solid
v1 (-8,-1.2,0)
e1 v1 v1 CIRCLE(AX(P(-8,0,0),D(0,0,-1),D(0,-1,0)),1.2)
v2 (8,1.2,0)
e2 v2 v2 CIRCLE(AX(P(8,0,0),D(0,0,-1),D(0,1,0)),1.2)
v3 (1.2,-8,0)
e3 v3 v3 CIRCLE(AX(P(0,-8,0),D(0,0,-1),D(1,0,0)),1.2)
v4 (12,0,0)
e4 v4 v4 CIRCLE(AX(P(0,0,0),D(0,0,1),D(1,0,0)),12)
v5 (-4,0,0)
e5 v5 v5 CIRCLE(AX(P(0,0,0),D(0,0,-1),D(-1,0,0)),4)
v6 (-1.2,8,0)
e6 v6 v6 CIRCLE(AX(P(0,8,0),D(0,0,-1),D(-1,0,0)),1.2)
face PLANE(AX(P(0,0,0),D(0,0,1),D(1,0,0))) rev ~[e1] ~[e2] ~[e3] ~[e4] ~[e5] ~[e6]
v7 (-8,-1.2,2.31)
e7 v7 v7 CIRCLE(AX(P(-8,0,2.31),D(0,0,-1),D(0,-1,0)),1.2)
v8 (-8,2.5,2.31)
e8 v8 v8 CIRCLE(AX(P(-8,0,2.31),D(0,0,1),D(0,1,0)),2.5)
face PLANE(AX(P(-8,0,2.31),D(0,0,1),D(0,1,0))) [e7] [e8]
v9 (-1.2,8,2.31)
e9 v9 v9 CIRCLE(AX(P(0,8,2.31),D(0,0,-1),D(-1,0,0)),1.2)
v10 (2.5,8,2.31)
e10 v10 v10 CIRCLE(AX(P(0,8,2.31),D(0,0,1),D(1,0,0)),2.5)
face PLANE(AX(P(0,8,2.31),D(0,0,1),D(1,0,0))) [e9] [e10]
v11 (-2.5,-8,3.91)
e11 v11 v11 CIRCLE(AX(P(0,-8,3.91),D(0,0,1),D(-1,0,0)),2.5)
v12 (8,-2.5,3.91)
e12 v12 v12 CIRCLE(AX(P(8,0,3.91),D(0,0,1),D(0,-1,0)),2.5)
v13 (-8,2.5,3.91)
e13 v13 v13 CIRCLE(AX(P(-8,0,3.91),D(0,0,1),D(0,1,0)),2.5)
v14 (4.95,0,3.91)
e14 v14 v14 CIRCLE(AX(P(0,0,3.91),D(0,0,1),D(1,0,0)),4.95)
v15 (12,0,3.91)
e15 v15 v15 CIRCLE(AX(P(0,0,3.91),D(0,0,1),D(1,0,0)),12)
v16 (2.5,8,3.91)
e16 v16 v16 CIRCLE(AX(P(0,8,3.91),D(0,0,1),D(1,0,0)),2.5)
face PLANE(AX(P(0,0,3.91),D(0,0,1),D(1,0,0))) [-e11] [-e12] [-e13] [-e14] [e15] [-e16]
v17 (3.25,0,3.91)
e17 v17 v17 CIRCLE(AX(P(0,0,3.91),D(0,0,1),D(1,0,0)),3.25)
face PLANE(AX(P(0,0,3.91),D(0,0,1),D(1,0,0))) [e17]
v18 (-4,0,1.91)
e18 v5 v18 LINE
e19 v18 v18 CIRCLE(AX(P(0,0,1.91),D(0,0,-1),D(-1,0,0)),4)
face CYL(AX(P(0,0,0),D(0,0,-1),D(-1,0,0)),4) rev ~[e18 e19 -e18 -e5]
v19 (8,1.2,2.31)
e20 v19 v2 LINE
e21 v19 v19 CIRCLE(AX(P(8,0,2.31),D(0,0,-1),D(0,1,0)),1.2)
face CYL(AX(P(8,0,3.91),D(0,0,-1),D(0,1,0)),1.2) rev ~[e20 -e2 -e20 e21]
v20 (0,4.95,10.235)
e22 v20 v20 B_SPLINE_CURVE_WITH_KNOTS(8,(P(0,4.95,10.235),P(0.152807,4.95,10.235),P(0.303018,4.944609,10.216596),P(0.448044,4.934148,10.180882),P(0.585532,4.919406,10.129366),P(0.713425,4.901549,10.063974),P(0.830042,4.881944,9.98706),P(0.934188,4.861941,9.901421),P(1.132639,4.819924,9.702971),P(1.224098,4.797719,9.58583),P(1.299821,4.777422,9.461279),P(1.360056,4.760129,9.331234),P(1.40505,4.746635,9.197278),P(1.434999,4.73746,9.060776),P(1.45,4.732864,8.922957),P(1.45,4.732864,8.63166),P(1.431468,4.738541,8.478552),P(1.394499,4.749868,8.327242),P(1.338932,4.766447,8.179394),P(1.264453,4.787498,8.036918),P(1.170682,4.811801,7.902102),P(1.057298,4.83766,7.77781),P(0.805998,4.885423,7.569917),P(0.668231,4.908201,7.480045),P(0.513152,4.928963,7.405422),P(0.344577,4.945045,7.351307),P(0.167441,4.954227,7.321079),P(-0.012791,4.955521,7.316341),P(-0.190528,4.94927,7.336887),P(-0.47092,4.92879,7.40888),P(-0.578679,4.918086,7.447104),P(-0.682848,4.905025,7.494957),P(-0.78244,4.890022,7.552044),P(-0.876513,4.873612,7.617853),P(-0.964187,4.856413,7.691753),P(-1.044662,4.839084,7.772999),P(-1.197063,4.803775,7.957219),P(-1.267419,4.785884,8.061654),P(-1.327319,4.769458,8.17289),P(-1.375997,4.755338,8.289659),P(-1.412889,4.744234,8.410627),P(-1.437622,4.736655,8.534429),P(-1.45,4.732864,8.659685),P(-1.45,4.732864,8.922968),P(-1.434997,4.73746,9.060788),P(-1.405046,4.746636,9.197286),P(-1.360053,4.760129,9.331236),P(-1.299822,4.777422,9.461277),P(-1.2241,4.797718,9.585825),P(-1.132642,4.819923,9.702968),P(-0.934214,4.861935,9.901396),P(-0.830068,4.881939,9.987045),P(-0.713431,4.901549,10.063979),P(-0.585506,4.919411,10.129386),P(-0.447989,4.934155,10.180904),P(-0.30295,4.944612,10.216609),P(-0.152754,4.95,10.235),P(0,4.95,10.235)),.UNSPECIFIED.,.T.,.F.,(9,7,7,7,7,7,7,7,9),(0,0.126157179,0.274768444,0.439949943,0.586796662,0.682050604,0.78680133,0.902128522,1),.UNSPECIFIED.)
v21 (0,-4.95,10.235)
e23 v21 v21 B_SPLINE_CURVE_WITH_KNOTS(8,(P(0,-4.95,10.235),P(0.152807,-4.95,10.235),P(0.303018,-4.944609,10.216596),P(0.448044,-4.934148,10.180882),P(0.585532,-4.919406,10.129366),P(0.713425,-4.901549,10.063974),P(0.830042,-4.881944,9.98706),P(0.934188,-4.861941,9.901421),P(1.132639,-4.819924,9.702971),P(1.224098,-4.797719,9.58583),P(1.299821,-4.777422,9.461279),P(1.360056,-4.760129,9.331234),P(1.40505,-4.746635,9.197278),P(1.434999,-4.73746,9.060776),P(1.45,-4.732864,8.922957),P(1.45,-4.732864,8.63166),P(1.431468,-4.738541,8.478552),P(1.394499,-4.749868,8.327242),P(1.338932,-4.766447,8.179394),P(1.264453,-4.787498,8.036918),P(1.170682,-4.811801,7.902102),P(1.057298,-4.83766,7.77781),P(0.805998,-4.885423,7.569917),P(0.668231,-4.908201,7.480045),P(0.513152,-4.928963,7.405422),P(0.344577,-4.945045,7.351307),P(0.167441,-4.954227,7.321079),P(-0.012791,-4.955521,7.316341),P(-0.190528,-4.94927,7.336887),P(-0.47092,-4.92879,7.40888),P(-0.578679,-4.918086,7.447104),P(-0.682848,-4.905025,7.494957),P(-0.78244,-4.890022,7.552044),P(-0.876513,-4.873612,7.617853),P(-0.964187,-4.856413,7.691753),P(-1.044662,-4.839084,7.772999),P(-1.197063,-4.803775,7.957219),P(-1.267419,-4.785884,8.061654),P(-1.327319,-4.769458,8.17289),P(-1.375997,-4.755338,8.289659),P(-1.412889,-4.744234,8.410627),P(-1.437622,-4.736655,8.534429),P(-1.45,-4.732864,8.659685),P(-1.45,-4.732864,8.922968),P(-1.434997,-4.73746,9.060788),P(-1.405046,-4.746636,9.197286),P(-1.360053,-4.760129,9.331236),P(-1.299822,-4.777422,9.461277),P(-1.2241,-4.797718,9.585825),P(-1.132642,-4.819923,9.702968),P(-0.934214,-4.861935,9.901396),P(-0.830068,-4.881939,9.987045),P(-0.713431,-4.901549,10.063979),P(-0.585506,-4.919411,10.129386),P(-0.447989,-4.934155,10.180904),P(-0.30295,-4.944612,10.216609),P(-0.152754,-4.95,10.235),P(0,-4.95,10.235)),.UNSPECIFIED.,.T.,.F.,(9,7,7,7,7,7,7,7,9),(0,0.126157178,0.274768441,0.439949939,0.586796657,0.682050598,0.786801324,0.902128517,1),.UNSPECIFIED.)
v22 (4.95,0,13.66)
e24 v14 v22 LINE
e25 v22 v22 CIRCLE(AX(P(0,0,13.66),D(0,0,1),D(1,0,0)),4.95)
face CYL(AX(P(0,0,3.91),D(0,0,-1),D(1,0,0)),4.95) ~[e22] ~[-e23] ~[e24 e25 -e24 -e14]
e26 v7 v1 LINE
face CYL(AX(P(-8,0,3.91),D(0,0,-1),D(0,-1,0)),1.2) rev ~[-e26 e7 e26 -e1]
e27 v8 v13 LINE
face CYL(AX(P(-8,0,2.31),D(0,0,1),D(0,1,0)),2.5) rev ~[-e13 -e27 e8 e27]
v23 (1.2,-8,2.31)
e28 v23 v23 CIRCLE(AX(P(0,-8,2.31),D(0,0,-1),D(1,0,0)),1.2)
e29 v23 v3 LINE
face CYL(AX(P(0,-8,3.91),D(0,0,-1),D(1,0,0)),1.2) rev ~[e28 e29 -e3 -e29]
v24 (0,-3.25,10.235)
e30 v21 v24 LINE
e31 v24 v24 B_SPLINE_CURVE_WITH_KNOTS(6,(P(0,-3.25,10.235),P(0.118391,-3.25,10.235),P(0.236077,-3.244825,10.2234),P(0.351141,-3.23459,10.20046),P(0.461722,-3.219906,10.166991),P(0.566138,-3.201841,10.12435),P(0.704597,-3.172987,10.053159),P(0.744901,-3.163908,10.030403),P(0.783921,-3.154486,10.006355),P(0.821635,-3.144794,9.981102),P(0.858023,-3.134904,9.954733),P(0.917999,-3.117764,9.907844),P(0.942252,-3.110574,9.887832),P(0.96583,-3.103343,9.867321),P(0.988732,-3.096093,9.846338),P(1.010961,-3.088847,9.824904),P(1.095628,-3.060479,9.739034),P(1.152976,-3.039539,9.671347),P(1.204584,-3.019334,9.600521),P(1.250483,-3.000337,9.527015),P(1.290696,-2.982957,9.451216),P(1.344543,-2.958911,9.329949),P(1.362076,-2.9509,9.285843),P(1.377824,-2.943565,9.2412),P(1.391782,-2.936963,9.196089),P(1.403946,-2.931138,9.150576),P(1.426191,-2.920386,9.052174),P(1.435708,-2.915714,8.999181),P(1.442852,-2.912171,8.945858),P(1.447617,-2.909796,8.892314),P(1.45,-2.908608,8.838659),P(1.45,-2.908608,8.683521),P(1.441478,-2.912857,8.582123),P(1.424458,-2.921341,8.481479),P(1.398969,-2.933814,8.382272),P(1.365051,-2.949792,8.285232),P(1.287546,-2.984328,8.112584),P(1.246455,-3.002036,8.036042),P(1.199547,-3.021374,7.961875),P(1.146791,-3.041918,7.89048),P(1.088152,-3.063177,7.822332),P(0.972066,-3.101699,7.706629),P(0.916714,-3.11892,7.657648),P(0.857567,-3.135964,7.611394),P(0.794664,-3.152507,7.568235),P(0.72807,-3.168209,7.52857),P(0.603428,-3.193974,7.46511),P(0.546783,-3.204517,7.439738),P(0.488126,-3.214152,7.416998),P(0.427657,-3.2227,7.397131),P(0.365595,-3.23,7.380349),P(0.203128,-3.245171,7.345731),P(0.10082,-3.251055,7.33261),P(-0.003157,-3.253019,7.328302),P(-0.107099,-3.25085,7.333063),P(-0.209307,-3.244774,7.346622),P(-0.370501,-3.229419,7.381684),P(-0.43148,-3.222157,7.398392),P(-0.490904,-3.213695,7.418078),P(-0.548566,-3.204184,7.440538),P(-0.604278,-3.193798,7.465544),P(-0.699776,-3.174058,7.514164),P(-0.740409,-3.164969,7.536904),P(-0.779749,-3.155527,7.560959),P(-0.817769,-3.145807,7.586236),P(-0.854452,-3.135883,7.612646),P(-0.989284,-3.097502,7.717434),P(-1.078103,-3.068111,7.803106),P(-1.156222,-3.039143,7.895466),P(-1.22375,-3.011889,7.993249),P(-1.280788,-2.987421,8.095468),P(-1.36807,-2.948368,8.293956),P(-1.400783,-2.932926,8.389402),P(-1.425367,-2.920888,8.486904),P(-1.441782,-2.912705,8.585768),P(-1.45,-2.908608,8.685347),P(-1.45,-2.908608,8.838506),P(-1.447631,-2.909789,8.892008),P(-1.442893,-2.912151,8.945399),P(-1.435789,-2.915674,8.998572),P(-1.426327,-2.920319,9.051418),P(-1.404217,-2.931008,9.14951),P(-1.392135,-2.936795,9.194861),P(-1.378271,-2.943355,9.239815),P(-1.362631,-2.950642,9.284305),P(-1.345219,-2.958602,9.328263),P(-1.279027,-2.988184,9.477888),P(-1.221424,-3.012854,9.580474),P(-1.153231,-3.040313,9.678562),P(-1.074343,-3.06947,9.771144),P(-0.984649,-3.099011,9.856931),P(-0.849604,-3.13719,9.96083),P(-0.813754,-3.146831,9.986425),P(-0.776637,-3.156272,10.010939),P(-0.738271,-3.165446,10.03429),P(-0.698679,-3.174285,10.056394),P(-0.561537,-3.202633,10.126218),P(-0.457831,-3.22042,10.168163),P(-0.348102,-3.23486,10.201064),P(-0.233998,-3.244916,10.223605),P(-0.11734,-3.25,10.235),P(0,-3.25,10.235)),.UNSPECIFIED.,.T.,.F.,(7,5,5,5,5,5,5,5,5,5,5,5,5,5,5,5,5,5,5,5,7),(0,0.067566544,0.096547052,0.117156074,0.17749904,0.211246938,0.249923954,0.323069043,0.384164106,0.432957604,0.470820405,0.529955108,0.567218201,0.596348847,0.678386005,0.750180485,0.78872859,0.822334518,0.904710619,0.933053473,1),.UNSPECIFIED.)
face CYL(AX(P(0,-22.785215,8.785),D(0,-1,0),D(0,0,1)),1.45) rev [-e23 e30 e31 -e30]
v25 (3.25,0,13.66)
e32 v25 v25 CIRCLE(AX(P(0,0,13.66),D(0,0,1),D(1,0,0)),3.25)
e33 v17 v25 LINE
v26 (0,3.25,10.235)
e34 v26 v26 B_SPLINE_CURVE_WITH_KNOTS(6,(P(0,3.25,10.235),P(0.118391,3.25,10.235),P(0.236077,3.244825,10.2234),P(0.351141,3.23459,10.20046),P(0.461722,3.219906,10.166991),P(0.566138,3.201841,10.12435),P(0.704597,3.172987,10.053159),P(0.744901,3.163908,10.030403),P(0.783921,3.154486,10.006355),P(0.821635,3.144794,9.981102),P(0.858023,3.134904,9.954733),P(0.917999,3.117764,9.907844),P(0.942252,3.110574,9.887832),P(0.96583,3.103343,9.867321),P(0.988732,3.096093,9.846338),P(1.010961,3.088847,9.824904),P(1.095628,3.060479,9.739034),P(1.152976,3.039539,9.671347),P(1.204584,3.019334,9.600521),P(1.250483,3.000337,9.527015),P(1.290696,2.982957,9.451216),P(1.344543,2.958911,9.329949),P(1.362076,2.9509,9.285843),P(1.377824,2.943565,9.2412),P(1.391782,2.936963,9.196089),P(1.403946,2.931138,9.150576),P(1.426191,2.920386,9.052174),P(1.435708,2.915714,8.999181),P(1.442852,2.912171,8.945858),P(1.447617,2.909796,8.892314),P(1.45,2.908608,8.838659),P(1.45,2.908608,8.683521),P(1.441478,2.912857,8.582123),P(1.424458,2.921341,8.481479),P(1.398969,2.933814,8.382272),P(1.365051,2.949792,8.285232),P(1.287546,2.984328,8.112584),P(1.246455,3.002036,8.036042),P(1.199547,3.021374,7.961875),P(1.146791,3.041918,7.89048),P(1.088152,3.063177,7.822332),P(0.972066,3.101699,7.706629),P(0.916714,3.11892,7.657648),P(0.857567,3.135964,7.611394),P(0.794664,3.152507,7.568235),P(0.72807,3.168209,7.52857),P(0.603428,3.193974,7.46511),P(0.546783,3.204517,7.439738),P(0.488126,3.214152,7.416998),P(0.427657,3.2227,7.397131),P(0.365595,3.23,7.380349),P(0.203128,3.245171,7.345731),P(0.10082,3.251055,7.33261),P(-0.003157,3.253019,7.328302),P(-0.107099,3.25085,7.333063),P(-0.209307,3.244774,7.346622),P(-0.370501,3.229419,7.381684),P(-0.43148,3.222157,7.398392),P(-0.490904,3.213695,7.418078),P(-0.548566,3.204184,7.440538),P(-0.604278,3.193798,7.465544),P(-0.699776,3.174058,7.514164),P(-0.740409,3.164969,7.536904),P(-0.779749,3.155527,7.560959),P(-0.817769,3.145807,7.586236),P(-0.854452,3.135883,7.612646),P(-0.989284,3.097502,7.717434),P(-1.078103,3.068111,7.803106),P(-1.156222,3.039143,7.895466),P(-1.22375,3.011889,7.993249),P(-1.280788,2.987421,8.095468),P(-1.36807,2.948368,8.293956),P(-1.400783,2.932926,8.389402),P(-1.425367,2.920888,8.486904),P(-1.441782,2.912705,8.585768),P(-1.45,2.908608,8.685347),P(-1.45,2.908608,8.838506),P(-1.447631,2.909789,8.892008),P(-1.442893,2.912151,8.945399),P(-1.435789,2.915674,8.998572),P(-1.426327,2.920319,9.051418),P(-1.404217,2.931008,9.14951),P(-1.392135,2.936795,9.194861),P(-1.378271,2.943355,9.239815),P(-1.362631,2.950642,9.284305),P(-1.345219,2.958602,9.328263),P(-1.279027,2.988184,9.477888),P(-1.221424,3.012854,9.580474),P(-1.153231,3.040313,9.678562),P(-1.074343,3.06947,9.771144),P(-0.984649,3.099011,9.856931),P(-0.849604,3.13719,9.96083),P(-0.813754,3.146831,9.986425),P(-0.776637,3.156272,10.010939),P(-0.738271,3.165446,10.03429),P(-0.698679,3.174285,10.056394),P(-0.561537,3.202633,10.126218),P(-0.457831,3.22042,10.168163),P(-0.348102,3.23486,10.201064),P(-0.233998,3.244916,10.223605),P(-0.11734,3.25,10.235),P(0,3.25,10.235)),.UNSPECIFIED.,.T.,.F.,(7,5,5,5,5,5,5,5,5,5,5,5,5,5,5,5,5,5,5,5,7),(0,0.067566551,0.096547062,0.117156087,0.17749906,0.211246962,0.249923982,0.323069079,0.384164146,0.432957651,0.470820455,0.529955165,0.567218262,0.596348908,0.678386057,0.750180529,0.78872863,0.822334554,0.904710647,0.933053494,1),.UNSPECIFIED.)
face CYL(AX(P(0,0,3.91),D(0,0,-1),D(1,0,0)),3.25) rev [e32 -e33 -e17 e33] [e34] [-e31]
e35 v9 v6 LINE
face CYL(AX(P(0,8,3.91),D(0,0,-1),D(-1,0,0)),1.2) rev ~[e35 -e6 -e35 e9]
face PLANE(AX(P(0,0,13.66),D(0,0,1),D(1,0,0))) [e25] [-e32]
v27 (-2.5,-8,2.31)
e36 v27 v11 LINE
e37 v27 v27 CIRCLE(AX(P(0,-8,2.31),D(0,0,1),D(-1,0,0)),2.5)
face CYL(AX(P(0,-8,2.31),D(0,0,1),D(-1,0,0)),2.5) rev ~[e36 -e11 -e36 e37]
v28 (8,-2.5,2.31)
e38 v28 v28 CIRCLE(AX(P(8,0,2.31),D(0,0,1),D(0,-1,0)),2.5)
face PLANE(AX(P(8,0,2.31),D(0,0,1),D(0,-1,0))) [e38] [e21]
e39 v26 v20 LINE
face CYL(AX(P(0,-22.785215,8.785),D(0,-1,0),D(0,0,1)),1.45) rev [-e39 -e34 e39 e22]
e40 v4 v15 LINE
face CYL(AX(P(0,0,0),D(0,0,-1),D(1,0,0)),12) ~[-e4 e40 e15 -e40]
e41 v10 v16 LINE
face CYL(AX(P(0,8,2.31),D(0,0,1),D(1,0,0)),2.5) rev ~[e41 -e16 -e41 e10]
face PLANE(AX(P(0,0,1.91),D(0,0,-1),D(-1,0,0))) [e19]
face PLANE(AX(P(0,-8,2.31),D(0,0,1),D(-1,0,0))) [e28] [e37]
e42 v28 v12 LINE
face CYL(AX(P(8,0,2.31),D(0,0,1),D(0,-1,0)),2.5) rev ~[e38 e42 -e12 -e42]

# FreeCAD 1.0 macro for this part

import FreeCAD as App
import Part
import Sketcher
Q = App.Units.Quantity

doc = App.newDocument("Part")
params = doc.addObject("Spreadsheet::Sheet", "Params")
for row, (alias, value) in enumerate([
    ("sketch1_diameter", "24 mm"),
    ("pad1_length", "3.91 mm"),
    ("sketch2_diameter", "8 mm"),
    ("pocket1_length", "1.91 mm"),
    ("sketch3_diameter", "9.9 mm"),
    ("sketch3_diameter2", "6.5 mm"),
    ("pad2_length", "9.75 mm"),
    ("sketch4_diameter", "2.4 mm"),
    ("hole_diameter", "2.4 mm"),
    ("hole_cbore_diameter", "5 mm"),
    ("hole_cbore_depth", "1.6 mm"),
    ("sketch5_diameter", "2.9 mm"),
], start=1):
    params.set(f"A{row}", alias)
    params.set(f"B{row}", "=" + value)
    params.setAlias(f"B{row}", alias)

body = doc.addObject("PartDesign::Body", "Body")

sketch1 = body.newObject("Sketcher::SketchObject", "Sketch")
sketch1.AttachmentSupport = (doc.getObject("XY_Plane"), [""])
sketch1.MapMode = "FlatFace"
sketch1.addGeometry(Part.Circle(App.Vector(0, 0, 0), App.Vector(0, 0, 1), 12), False)
sketch1.addConstraint([
    Sketcher.Constraint("Coincident", 0, 3, -1, 1),
    Sketcher.Constraint("Diameter", 0, Q("24 mm")),
])
sketch1.setExpression("Constraints[1]", "Params.sketch1_diameter")
pad1 = body.newObject("PartDesign::Pad", "Pad")
pad1.Profile = sketch1
pad1.setExpression("Length", "Params.pad1_length")

sketch2 = body.newObject("Sketcher::SketchObject", "Sketch001")
sketch2.AttachmentSupport = (doc.getObject("XY_Plane"), [""])
sketch2.MapMode = "FlatFace"
sketch2.addGeometry(Part.Circle(App.Vector(0, 0, 0), App.Vector(0, 0, 1), 4), False)
sketch2.addConstraint([
    Sketcher.Constraint("Coincident", 0, 3, -1, 1),
    Sketcher.Constraint("Diameter", 0, Q("8 mm")),
])
sketch2.setExpression("Constraints[1]", "Params.sketch2_diameter")
pocket1 = body.newObject("PartDesign::Pocket", "Pocket")
pocket1.Profile = sketch2
pocket1.setExpression("Length", "Params.pocket1_length")
pocket1.Reversed = True

sketch3 = body.newObject("Sketcher::SketchObject", "Sketch002")
sketch3.AttachmentSupport = (doc.getObject("XY_Plane"), [""])
sketch3.MapMode = "FlatFace"
sketch3.AttachmentOffset = App.Placement(App.Vector(0, 0, 3.91), App.Rotation())
sketch3.addGeometry([
    Part.Circle(App.Vector(0, 0, 0), App.Vector(0, 0, 1), 5),
    Part.Circle(App.Vector(0, 0, 0), App.Vector(0, 0, 1), 3.2),
], False)
sketch3.addConstraint([
    Sketcher.Constraint("Coincident", 0, 3, -1, 1),
    Sketcher.Constraint("Coincident", 1, 3, -1, 1),
    Sketcher.Constraint("Diameter", 0, Q("9.9 mm")),
    Sketcher.Constraint("Diameter", 1, Q("6.5 mm")),
])
sketch3.setExpression("Constraints[2]", "Params.sketch3_diameter")
sketch3.setExpression("Constraints[3]", "Params.sketch3_diameter2")
pad2 = body.newObject("PartDesign::Pad", "Pad001")
pad2.Profile = sketch3
pad2.setExpression("Length", "Params.pad2_length")

sketch4 = body.newObject("Sketcher::SketchObject", "Sketch003")
sketch4.AttachmentSupport = (doc.getObject("XY_Plane"), [""])
sketch4.MapMode = "FlatFace"
sketch4.AttachmentOffset = App.Placement(App.Vector(0, 0, 3.91), App.Rotation())
sketch4.addGeometry(Part.Circle(App.Vector(0, 8, 0), App.Vector(0, 0, 1), 1.2), False)
sketch4.addConstraint([
    Sketcher.Constraint("PointOnObject", 0, 3, -2),
    Sketcher.Constraint("Diameter", 0, Q("2.4 mm")),
    Sketcher.Constraint("DistanceY", -1, 1, 0, 3, Q("8 mm")),
])
sketch4.setExpression("Constraints[1]", "Params.sketch4_diameter")
doc.recompute()
hole = body.newObject("PartDesign::Hole", "Hole")
hole.Profile = sketch4
hole.ThreadType = "None"
hole.setExpression("Diameter", "Params.hole_diameter")
hole.DepthType = "ThroughAll"
hole.HoleCutType = "Counterbore"
hole.setExpression("HoleCutDiameter", "Params.hole_cbore_diameter")
hole.setExpression("HoleCutDepth", "Params.hole_cbore_depth")
doc.recompute()

polarpattern = body.newObject("PartDesign::PolarPattern", "PolarPattern")
polarpattern.Originals = [hole]
polarpattern.Axis = (doc.getObject("Z_Axis"), [""])
polarpattern.Angle = 360
polarpattern.Occurrences = 4
body.Tip = polarpattern

sketch5 = body.newObject("Sketcher::SketchObject", "Sketch004")
sketch5.AttachmentSupport = (doc.getObject("XZ_Plane"), [""])
sketch5.MapMode = "FlatFace"
sketch5.addGeometry(Part.Circle(App.Vector(0, 8.8, 0), App.Vector(0, 0, 1), 1.4), False)
sketch5.addConstraint([
    Sketcher.Constraint("PointOnObject", 0, 3, -2),
    Sketcher.Constraint("Diameter", 0, Q("2.9 mm")),
    Sketcher.Constraint("DistanceY", -1, 1, 0, 3, Q("8.785 mm")),
])
sketch5.setExpression("Constraints[1]", "Params.sketch5_diameter")
pocket2 = body.newObject("PartDesign::Pocket", "Pocket001")
pocket2.Profile = sketch5
pocket2.Type = "ThroughAll"
pocket2.Midplane = True

doc.recompute()
